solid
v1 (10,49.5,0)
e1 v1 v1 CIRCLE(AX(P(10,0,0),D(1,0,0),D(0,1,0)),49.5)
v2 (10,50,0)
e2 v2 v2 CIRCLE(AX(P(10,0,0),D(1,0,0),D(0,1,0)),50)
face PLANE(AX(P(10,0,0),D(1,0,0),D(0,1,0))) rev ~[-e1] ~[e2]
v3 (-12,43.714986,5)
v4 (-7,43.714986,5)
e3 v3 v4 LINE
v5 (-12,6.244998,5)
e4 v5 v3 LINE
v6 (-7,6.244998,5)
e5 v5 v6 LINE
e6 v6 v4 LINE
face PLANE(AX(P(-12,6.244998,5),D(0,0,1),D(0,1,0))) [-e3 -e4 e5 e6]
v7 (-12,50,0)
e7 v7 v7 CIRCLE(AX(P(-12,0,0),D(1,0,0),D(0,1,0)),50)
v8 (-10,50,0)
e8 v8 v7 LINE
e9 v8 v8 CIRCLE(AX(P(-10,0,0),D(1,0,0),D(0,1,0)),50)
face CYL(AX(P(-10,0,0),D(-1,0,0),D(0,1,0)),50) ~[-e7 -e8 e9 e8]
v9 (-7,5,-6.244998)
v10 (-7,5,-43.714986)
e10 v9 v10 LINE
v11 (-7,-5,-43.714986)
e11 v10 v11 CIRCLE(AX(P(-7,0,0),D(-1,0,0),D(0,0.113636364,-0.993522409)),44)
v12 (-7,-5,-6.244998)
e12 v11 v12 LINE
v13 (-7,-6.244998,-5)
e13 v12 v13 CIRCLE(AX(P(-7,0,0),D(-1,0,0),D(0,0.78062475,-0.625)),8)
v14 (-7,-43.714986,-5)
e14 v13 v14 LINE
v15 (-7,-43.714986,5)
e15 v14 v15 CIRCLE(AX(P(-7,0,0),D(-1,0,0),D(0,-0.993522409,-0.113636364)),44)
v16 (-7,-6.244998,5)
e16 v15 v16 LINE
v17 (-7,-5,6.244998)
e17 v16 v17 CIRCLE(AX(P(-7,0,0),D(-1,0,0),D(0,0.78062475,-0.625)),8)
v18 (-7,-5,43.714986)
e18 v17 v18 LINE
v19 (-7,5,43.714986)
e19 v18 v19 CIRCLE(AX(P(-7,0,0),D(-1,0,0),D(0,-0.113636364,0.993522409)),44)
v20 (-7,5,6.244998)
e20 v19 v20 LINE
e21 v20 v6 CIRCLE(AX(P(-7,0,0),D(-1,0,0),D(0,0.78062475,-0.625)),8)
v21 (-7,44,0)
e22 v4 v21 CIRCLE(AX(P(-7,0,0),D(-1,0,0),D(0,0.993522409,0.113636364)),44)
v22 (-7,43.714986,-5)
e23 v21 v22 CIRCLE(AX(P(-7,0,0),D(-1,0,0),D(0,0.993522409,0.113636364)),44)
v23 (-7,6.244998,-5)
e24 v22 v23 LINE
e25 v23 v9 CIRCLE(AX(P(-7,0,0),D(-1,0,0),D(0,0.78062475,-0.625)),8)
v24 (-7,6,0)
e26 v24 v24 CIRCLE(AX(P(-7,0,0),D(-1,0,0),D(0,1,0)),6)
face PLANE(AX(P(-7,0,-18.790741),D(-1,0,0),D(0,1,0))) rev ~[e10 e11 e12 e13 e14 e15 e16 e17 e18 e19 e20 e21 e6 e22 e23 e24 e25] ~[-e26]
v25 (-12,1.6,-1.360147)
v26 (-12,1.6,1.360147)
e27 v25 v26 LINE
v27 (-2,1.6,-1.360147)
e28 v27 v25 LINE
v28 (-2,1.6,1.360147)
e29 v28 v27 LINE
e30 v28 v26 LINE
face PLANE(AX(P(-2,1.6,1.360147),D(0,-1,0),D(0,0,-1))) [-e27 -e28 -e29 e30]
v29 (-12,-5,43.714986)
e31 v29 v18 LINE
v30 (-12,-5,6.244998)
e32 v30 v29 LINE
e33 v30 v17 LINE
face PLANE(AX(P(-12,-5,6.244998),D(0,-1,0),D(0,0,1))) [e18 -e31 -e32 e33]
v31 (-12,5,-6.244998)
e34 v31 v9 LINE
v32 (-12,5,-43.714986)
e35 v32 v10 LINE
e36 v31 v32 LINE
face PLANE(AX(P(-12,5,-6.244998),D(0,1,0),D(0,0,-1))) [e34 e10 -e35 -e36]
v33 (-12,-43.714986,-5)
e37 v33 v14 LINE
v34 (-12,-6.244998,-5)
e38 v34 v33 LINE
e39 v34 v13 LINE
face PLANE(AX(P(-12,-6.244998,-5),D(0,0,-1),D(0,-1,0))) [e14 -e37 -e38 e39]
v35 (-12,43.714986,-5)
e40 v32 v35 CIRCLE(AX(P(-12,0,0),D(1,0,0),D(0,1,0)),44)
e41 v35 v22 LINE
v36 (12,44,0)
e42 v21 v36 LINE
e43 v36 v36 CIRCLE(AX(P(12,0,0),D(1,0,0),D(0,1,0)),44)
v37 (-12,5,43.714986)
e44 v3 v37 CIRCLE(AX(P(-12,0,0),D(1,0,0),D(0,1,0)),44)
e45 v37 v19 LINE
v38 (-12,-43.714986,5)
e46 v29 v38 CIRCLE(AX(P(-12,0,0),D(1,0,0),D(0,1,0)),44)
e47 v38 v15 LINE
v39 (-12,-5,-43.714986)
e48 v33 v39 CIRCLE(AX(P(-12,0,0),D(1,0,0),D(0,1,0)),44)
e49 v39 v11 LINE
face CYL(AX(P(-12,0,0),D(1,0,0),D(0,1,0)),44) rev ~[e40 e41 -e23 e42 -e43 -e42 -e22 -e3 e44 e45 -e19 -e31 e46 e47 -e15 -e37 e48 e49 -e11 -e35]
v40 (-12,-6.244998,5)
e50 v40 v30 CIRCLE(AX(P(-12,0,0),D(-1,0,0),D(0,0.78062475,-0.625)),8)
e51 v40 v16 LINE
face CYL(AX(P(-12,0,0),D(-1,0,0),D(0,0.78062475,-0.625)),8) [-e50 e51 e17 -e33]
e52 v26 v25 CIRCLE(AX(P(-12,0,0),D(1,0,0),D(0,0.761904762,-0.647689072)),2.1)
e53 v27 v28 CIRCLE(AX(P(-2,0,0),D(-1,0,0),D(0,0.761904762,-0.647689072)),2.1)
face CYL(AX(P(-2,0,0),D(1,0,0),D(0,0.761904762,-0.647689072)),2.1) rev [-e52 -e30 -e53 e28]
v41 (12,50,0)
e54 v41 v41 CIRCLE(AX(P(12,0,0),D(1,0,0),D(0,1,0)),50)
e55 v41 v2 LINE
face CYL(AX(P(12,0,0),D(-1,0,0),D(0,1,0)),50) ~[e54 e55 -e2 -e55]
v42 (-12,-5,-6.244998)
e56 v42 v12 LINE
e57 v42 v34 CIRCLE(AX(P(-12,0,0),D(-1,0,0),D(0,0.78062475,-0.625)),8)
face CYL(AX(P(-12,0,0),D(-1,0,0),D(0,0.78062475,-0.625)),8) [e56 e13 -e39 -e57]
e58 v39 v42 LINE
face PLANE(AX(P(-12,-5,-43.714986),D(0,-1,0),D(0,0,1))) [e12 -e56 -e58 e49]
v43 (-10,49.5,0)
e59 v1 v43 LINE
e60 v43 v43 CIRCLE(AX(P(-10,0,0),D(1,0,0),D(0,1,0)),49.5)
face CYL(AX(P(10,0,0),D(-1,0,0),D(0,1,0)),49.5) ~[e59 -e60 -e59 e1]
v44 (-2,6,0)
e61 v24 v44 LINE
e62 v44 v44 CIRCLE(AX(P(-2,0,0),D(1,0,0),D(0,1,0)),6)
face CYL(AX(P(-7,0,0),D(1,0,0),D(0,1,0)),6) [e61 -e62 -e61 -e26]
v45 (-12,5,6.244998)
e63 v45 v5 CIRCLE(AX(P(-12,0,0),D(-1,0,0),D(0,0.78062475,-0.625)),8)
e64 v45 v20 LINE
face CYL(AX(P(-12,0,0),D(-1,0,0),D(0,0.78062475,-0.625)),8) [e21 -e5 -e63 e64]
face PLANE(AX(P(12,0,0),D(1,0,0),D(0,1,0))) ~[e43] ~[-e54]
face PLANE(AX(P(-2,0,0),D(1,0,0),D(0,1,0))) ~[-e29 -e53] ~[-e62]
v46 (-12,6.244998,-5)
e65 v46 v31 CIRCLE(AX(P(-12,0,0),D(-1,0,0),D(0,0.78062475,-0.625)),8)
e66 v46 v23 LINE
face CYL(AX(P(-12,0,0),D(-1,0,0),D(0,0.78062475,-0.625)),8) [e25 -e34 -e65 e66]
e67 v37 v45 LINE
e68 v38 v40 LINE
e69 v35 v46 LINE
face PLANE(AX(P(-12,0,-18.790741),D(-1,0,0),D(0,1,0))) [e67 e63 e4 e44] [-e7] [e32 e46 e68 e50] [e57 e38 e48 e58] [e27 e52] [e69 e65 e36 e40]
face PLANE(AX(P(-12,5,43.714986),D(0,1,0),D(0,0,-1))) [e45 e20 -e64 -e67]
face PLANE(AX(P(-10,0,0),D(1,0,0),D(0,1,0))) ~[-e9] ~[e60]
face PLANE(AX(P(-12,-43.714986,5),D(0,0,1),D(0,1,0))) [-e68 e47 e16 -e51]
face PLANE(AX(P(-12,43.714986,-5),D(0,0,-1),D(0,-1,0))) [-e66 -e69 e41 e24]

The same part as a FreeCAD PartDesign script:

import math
import FreeCAD as App
import Part
import Sketcher

V = App.Vector


def add_polygon(sketch, points):
    """Adds a closed chain of lines whose ends are joined by coincident constraints."""
    first, n = sketch.GeometryCount, len(points)
    for a, b in zip(points, points[1:] + points[:1]):
        sketch.addGeometry(Part.LineSegment(App.Vector(*a, 0), App.Vector(*b, 0)), False)
    for i in range(n):
        sketch.addConstraint(Sketcher.Constraint("Coincident", first + i, 2, first + (i + 1) % n, 1))

doc = App.newDocument("Part")
params = doc.addObject("Spreadsheet::Sheet", "Params")
for row, (alias, value) in enumerate([
    ("sketch1_width", "24 mm"),
    ("sketch1_width2", "2 mm"),
    ("sketch1_width3", "10 mm"),
    ("sketch1_height", "6 mm"),
    ("sketch1_height2", "0.5 mm"),
    ("revolution_angle", "360 deg"),
    ("sketch2_diameter", "12 mm"),
    ("sketch2_radius", "8 mm"),
    ("sketch2_radius2", "44 mm"),
    ("pad1_length", "5 mm"),
    ("sketch3_radius", "2.1 mm"),
], start=1):
    params.set(f"A{row}", alias)
    params.set(f"B{row}", "=" + value)
    params.setAlias(f"B{row}", alias)

body = doc.addObject("PartDesign::Body", "Body")
body.AllowCompound = True

# Sketch on XY plane
sketch1 = doc.addObject("Sketcher::SketchObject", "Sketch")
body.addObject(sketch1)
sketch1.AttachmentSupport = (doc.XY_Plane, [""])
sketch1.MapMode = "FlatFace"
add_polygon(sketch1, [(-12, 50), (-12, 44), (12, 44), (12, 50), (10, 50), (10, 49.5), (-10, 49.5), (-10, 50)])  # lines 0-7
add_polygon(sketch1, [(-12, 6), (-12, 0), (-2, 0), (-2, 6)])  # lines 8-11
sketch1.addConstraint([
    Sketcher.Constraint("Vertical", 0),
    Sketcher.Constraint("Horizontal", 1),
    Sketcher.Constraint("Vertical", 2),
    Sketcher.Constraint("Horizontal", 3),
    Sketcher.Constraint("Vertical", 4),
    Sketcher.Constraint("Horizontal", 5),
    Sketcher.Constraint("Vertical", 6),
    Sketcher.Constraint("Horizontal", 7),
    Sketcher.Constraint("Vertical", 8),
    Sketcher.Constraint("Horizontal", 9),
    Sketcher.Constraint("Vertical", 10),
    Sketcher.Constraint("Horizontal", 11),
    Sketcher.Constraint("Symmetric", 3, 2, 6, 2, -2),
    Sketcher.Constraint("PointOnObject", 8, 2, -1),
    Sketcher.Constraint("Vertical", 7, 2, 8, 2),
    Sketcher.Constraint("Equal", 3, 7),
    Sketcher.Constraint("Equal", 2, 8),
    Sketcher.Constraint("DistanceX", 1, 1, 1, 2, 24.0),
    Sketcher.Constraint("DistanceX", 3, 2, 3, 1, 2.0),
    Sketcher.Constraint("DistanceX", 9, 1, 9, 2, 10.0),
    Sketcher.Constraint("DistanceY", 0, 2, 0, 1, 6.0),
    Sketcher.Constraint("DistanceY", 4, 2, 4, 1, 0.5),
    Sketcher.Constraint("DistanceY", -1, 1, 0, 2, 44.0),
])
sketch1.setExpression("Constraints[29]", "Params.sketch1_width")
sketch1.setExpression("Constraints[30]", "Params.sketch1_width2")
sketch1.setExpression("Constraints[31]", "Params.sketch1_width3")
sketch1.setExpression("Constraints[32]", "Params.sketch1_height")
sketch1.setExpression("Constraints[33]", "Params.sketch1_height2")
revolution = doc.addObject("PartDesign::Revolution", "Revolution")
body.addObject(revolution)
revolution.Profile = sketch1
revolution.ReferenceAxis = (sketch1, ["H_Axis"])
revolution.setExpression("Angle", "Params.revolution_angle")

# Sketch on YZ plane
sketch2 = doc.addObject("Sketcher::SketchObject", "Sketch001")
body.addObject(sketch2)
sketch2.AttachmentSupport = (doc.YZ_Plane, [""])
sketch2.MapMode = "FlatFace"
sketch2.AttachmentOffset = App.Placement(V(0, 0, -12), App.Rotation())
sketch2.addGeometry([
    Part.LineSegment(V(44, 5, 0), V(6, 5, 0)),  # 0
    Part.ArcOfCircle(Part.Circle(V(0, 0, 0), V(0, 0, 1), 8), math.radians(39), math.radians(321)),  # 1
    Part.LineSegment(V(6, -5, 0), V(44, -5, 0)),  # 2
    Part.ArcOfCircle(Part.Circle(V(0, 0, 0), V(0, 0, 1), 44), math.radians(-6.52), math.radians(6.52)),  # 3
    Part.Circle(V(0, 0, 0), V(0, 0, 1), 6),  # 4
], False)
sketch2.addConstraint([
    Sketcher.Constraint("Coincident", 0, 2, 1, 1),
    Sketcher.Constraint("Coincident", 1, 2, 2, 1),
    Sketcher.Constraint("Coincident", 2, 2, 3, 1),
    Sketcher.Constraint("Coincident", 3, 2, 0, 1),
    Sketcher.Constraint("Horizontal", 0),
    Sketcher.Constraint("Horizontal", 2),
    Sketcher.Constraint("Coincident", 1, 3, -1, 1),
    Sketcher.Constraint("Coincident", 3, 3, -1, 1),
    Sketcher.Constraint("Coincident", 4, 3, -1, 1),
    Sketcher.Constraint("Vertical", 0, 2, 1, 2),
    Sketcher.Constraint("Diameter", 4, 12.0),
    Sketcher.Constraint("Radius", 1, 8.0),
    Sketcher.Constraint("Radius", 3, 44.0),
    Sketcher.Constraint("DistanceY", -1, 1, 0, 2, 5.0),
])
sketch2.setExpression("Constraints[10]", "Params.sketch2_diameter")
sketch2.setExpression("Constraints[11]", "Params.sketch2_radius")
sketch2.setExpression("Constraints[12]", "Params.sketch2_radius2")
pad1 = doc.addObject("PartDesign::Pad", "Pad")
body.addObject(pad1)
pad1.Profile = sketch2
pad1.setExpression("Length", "Params.pad1_length")

# Sketch on YZ plane
sketch3 = doc.addObject("Sketcher::SketchObject", "Sketch002")
body.addObject(sketch3)
sketch3.AttachmentSupport = (doc.YZ_Plane, [""])
sketch3.MapMode = "FlatFace"
sketch3.AttachmentOffset = App.Placement(V(0, 0, -2), App.Rotation())
sketch3.addGeometry([
    Part.LineSegment(V(1.6, -1.4, 0), V(1.6, 1.4, 0)),
    Part.ArcOfCircle(Part.Circle(V(0, 0, 0), V(0, 0, 1), 2.1), math.radians(40), math.radians(320)),
], False)
sketch3.addConstraint([
    Sketcher.Constraint("Coincident", 0, 1, 1, 2),
    Sketcher.Constraint("Coincident", 1, 1, 0, 2),
    Sketcher.Constraint("Vertical", 0),
    Sketcher.Constraint("Coincident", 1, 3, -1, 1),
    Sketcher.Constraint("Radius", 1, 2.1),
    Sketcher.Constraint("DistanceX", -1, 1, 0, 1, 1.6),
])
sketch3.setExpression("Constraints[4]", "Params.sketch3_radius")
pocket1 = doc.addObject("PartDesign::Pocket", "Pocket")
body.addObject(pocket1)
pocket1.Profile = sketch3
pocket1.Type = "ThroughAll"
pocket1.Midplane = True
doc.recompute()

polarpattern = doc.addObject("PartDesign::PolarPattern", "PolarPattern")
body.addObject(polarpattern)
polarpattern.Originals = [pad1]
polarpattern.Axis = (doc.X_Axis, [""])
polarpattern.Angle = 360
polarpattern.Occurrences = 4
body.Tip = polarpattern

doc.recompute()
